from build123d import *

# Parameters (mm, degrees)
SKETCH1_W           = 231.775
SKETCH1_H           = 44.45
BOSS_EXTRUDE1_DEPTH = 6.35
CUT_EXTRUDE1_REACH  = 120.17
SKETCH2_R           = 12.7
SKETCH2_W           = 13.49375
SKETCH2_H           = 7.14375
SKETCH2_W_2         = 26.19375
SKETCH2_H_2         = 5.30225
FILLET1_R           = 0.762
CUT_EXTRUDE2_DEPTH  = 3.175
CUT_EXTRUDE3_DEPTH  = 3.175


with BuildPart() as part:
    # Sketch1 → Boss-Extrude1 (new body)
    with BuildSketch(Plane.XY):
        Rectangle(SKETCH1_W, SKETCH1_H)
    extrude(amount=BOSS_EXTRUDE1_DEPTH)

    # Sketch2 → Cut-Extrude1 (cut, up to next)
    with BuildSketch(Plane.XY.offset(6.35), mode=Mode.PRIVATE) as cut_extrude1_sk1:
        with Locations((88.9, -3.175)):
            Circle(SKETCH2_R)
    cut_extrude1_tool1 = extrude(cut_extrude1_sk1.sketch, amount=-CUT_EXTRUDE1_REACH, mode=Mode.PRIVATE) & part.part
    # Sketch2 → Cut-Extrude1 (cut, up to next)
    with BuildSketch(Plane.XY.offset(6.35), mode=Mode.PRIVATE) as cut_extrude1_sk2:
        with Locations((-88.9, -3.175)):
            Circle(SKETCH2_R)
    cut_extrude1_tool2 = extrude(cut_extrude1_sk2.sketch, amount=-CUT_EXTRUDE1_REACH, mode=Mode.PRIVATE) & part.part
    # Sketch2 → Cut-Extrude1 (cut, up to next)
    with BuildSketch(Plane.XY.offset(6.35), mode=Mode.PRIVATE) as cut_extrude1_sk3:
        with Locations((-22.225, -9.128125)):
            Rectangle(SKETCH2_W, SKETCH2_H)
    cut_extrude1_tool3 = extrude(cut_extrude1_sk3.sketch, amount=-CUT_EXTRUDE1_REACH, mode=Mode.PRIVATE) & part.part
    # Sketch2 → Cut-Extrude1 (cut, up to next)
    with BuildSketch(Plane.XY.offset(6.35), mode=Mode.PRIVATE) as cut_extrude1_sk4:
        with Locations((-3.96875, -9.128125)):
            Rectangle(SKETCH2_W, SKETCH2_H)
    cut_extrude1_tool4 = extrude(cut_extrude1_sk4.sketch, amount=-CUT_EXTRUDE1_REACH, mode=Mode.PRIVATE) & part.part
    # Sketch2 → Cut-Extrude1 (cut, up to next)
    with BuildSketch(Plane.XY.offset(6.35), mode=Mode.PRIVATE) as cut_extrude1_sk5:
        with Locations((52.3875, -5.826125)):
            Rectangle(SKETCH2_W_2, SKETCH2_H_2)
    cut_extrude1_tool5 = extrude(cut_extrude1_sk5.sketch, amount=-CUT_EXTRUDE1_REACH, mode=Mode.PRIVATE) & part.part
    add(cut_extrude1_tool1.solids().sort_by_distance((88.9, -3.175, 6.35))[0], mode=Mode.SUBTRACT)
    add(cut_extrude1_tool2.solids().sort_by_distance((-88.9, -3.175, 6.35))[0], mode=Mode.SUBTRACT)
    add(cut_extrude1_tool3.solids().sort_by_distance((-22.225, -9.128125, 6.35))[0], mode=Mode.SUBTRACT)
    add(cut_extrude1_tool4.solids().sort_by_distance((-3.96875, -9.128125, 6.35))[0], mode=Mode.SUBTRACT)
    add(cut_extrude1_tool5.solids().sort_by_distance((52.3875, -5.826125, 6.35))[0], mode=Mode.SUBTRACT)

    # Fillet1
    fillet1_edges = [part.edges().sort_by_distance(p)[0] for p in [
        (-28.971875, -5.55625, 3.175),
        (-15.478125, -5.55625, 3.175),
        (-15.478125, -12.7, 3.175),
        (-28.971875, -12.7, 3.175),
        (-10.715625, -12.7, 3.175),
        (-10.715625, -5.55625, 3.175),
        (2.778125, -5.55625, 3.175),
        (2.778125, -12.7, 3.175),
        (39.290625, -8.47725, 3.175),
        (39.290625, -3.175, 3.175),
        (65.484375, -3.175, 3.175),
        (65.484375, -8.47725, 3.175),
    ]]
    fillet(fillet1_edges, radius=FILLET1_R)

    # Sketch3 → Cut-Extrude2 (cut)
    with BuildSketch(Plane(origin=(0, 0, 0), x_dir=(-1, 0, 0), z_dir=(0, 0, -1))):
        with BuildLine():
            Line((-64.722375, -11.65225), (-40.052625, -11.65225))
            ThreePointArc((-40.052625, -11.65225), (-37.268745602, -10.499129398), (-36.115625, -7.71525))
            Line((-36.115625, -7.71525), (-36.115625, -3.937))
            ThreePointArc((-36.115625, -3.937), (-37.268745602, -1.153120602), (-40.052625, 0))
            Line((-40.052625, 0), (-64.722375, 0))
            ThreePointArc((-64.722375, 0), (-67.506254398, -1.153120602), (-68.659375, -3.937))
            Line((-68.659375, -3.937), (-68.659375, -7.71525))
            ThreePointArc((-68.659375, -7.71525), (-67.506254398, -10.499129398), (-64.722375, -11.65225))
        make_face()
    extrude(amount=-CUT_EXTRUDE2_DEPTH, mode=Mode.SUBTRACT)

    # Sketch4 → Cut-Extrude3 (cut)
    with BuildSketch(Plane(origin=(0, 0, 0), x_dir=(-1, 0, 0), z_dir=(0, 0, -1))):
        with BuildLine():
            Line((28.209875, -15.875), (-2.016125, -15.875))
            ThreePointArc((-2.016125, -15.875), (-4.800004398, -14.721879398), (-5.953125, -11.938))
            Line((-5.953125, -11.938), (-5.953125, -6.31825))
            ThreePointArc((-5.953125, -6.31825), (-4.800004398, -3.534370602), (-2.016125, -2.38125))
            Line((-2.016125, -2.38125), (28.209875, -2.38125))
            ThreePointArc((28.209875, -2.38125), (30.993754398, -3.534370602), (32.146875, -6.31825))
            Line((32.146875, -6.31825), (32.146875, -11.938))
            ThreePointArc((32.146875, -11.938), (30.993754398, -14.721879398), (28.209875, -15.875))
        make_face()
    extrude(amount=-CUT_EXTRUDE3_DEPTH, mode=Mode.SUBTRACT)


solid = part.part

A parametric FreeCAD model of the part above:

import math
import FreeCAD as App
import Part
import Sketcher
from FreeCAD import Vector
Q = App.Units.Quantity


def edges_at(feature, points):
    """Names of the edges that pass closest to the given points."""
    edges = feature.Shape.Edges
    near = lambda p: min(range(len(edges)), key=lambda i: edges[i].distToShape(Part.Vertex(*p))[0])
    return sorted({f"Edge{near(p) + 1}" for p in points})

doc = App.newDocument("Part")
body = doc.addObject("PartDesign::Body", "Body")

sketch1 = body.newObject("Sketcher::SketchObject", "Sketch")
sketch1.AttachmentSupport = (doc.getObject("XY_Plane"), [""])
sketch1.MapMode = "FlatFace"
sketch1.addGeometry(Part.LineSegment(Vector(-116, 22, 0), Vector(-116, -22, 0)), False)
sketch1.addGeometry(Part.LineSegment(Vector(-116, -22, 0), Vector(116, -22, 0)), False)
sketch1.addGeometry(Part.LineSegment(Vector(116, -22, 0), Vector(116, 22, 0)), False)
sketch1.addGeometry(Part.LineSegment(Vector(116, 22, 0), Vector(-116, 22, 0)), False)
sketch1.addConstraint(Sketcher.Constraint("Coincident", 0, 2, 1, 1))
sketch1.addConstraint(Sketcher.Constraint("Coincident", 1, 2, 2, 1))
sketch1.addConstraint(Sketcher.Constraint("Coincident", 2, 2, 3, 1))
sketch1.addConstraint(Sketcher.Constraint("Coincident", 3, 2, 0, 1))
sketch1.addConstraint(Sketcher.Constraint("Vertical", 0))
sketch1.addConstraint(Sketcher.Constraint("Horizontal", 1))
sketch1.addConstraint(Sketcher.Constraint("Vertical", 2))
sketch1.addConstraint(Sketcher.Constraint("Horizontal", 3))
sketch1.addConstraint(Sketcher.Constraint("Symmetric", 0, 2, 2, 2, -1, 1))
sketch1.addConstraint(Sketcher.Constraint("DistanceY", 0, 2, 0, 1, Q("1.75 in")))
sketch1.addConstraint(Sketcher.Constraint("DistanceX", 1, 1, 1, 2, Q("9.125 in")))
pad1 = body.newObject("PartDesign::Pad", "Pad")
pad1.Profile = sketch1
pad1.Length = Q("0.25 in")

sketch2 = body.newObject("Sketcher::SketchObject", "Sketch001")
sketch2.AttachmentSupport = (doc.getObject("XY_Plane"), [""])
sketch2.MapMode = "FlatFace"
sketch2.AttachmentOffset = App.Placement(Vector(0, 0, 0.25 * 25.4), App.Rotation())
sketch2.addGeometry(Part.Circle(Vector(89, -3, 0), Vector(0, 0, 1), 13), False)
sketch2.addConstraint(Sketcher.Constraint("Diameter", 0, Q("1 in")))
sketch2.addConstraint(Sketcher.Constraint("DistanceX", -1, 1, 0, 3, Q("3.5 in")))
sketch2.addConstraint(Sketcher.Constraint("DistanceY", 0, 3, -1, 1, Q("0.125 in")))
pocket1 = body.newObject("PartDesign::Pocket", "Pocket")
pocket1.Profile = sketch2
pocket1.Type = "UpToFirst"

sketch3 = body.newObject("Sketcher::SketchObject", "Sketch002")
sketch3.AttachmentSupport = (doc.getObject("XY_Plane"), [""])
sketch3.MapMode = "FlatFace"
sketch3.AttachmentOffset = App.Placement(Vector(0, 0, 0.25 * 25.4), App.Rotation())
sketch3.addGeometry(Part.Circle(Vector(-89, -3, 0), Vector(0, 0, 1), 13), False)
sketch3.addConstraint(Sketcher.Constraint("Diameter", 0, Q("1 in")))
sketch3.addConstraint(Sketcher.Constraint("DistanceX", 0, 3, -1, 1, Q("3.5 in")))
sketch3.addConstraint(Sketcher.Constraint("DistanceY", 0, 3, -1, 1, Q("0.125 in")))
pocket2 = body.newObject("PartDesign::Pocket", "Pocket001")
pocket2.Profile = sketch3
pocket2.Type = "UpToFirst"

sketch4 = body.newObject("Sketcher::SketchObject", "Sketch003")
sketch4.AttachmentSupport = (doc.getObject("XY_Plane"), [""])
sketch4.MapMode = "FlatFace"
sketch4.AttachmentOffset = App.Placement(Vector(0, 0, 0.25 * 25.4), App.Rotation())
sketch4.addGeometry(Part.LineSegment(Vector(-29, -6, 0), Vector(-29, -13, 0)), False)
sketch4.addGeometry(Part.LineSegment(Vector(-29, -13, 0), Vector(-15, -13, 0)), False)
sketch4.addGeometry(Part.LineSegment(Vector(-15, -13, 0), Vector(-15, -6, 0)), False)
sketch4.addGeometry(Part.LineSegment(Vector(-15, -6, 0), Vector(-29, -6, 0)), False)
sketch4.addConstraint(Sketcher.Constraint("Coincident", 0, 2, 1, 1))
sketch4.addConstraint(Sketcher.Constraint("Coincident", 1, 2, 2, 1))
sketch4.addConstraint(Sketcher.Constraint("Coincident", 2, 2, 3, 1))
sketch4.addConstraint(Sketcher.Constraint("Coincident", 3, 2, 0, 1))
sketch4.addConstraint(Sketcher.Constraint("Vertical", 0))
sketch4.addConstraint(Sketcher.Constraint("Horizontal", 1))
sketch4.addConstraint(Sketcher.Constraint("Vertical", 2))
sketch4.addConstraint(Sketcher.Constraint("Horizontal", 3))
sketch4.addConstraint(Sketcher.Constraint("DistanceY", 0, 2, -1, 1, Q("0.5 in")))
sketch4.addConstraint(Sketcher.Constraint("DistanceX", 1, 1, 1, 2, Q("0.53125 in")))
sketch4.addConstraint(Sketcher.Constraint("DistanceY", 0, 2, 0, 1, Q("0.28125 in")))
sketch4.addConstraint(Sketcher.Constraint("DistanceX", 0, 2, -1, 1, Q("1.140625 in")))
pocket3 = body.newObject("PartDesign::Pocket", "Pocket002")
pocket3.Profile = sketch4
pocket3.Type = "UpToFirst"

sketch5 = body.newObject("Sketcher::SketchObject", "Sketch004")
sketch5.AttachmentSupport = (doc.getObject("XY_Plane"), [""])
sketch5.MapMode = "FlatFace"
sketch5.AttachmentOffset = App.Placement(Vector(0, 0, 0.25 * 25.4), App.Rotation())
sketch5.addGeometry(Part.LineSegment(Vector(-11, -6, 0), Vector(-11, -13, 0)), False)
sketch5.addGeometry(Part.LineSegment(Vector(-11, -13, 0), Vector(3, -13, 0)), False)
sketch5.addGeometry(Part.LineSegment(Vector(3, -13, 0), Vector(3, -6, 0)), False)
sketch5.addGeometry(Part.LineSegment(Vector(3, -6, 0), Vector(-11, -6, 0)), False)
sketch5.addConstraint(Sketcher.Constraint("Coincident", 0, 2, 1, 1))
sketch5.addConstraint(Sketcher.Constraint("Coincident", 1, 2, 2, 1))
sketch5.addConstraint(Sketcher.Constraint("Coincident", 2, 2, 3, 1))
sketch5.addConstraint(Sketcher.Constraint("Coincident", 3, 2, 0, 1))
sketch5.addConstraint(Sketcher.Constraint("Vertical", 0))
sketch5.addConstraint(Sketcher.Constraint("Horizontal", 1))
sketch5.addConstraint(Sketcher.Constraint("Vertical", 2))
sketch5.addConstraint(Sketcher.Constraint("Horizontal", 3))
sketch5.addConstraint(Sketcher.Constraint("DistanceY", 0, 2, -1, 1, Q("0.5 in")))
sketch5.addConstraint(Sketcher.Constraint("DistanceX", 1, 1, 1, 2, Q("0.53125 in")))
sketch5.addConstraint(Sketcher.Constraint("DistanceY", 0, 2, 0, 1, Q("0.28125 in")))
sketch5.addConstraint(Sketcher.Constraint("DistanceX", 0, 2, -1, 1, Q("0.421875 in")))
pocket4 = body.newObject("PartDesign::Pocket", "Pocket003")
pocket4.Profile = sketch5
pocket4.Type = "UpToFirst"

sketch6 = body.newObject("Sketcher::SketchObject", "Sketch005")
sketch6.AttachmentSupport = (doc.getObject("XY_Plane"), [""])
sketch6.MapMode = "FlatFace"
sketch6.AttachmentOffset = App.Placement(Vector(0, 0, 0.25 * 25.4), App.Rotation())
sketch6.addGeometry(Part.LineSegment(Vector(39, -3, 0), Vector(39, -8, 0)), False)
sketch6.addGeometry(Part.LineSegment(Vector(39, -8, 0), Vector(65, -8, 0)), False)
sketch6.addGeometry(Part.LineSegment(Vector(65, -8, 0), Vector(65, -3, 0)), False)
sketch6.addGeometry(Part.LineSegment(Vector(65, -3, 0), Vector(39, -3, 0)), False)
sketch6.addConstraint(Sketcher.Constraint("Coincident", 0, 2, 1, 1))
sketch6.addConstraint(Sketcher.Constraint("Coincident", 1, 2, 2, 1))
sketch6.addConstraint(Sketcher.Constraint("Coincident", 2, 2, 3, 1))
sketch6.addConstraint(Sketcher.Constraint("Coincident", 3, 2, 0, 1))
sketch6.addConstraint(Sketcher.Constraint("Vertical", 0))
sketch6.addConstraint(Sketcher.Constraint("Horizontal", 1))
sketch6.addConstraint(Sketcher.Constraint("Vertical", 2))
sketch6.addConstraint(Sketcher.Constraint("Horizontal", 3))
sketch6.addConstraint(Sketcher.Constraint("DistanceX", 1, 1, 1, 2, Q("1.03125 in")))
sketch6.addConstraint(Sketcher.Constraint("DistanceX", -1, 1, 0, 2, Q("1.546875 in")))
sketch6.addConstraint(Sketcher.Constraint("DistanceY", 2, 2, -1, 1, Q("0.125 in")))
sketch6.addConstraint(Sketcher.Constraint("DistanceY", 0, 2, 0, 1, Q("5.30225 mm")))
pocket5 = body.newObject("PartDesign::Pocket", "Pocket004")
pocket5.Profile = sketch6
pocket5.Type = "UpToFirst"
doc.recompute()

fillet = body.newObject("PartDesign::Fillet", "Fillet")
fillet.Base = (pocket5, edges_at(pocket5, [
    (-28.972, -5.556, 3.175),
    (-15.478, -5.556, 3.175),
    (-15.478, -12.7, 3.175),
    (-28.972, -12.7, 3.175),
    (-10.716, -12.7, 3.175),
    (-10.716, -5.556, 3.175),
    (2.778, -5.556, 3.175),
    (2.778, -12.7, 3.175),
    (39.291, -8.477, 3.175),
    (39.291, -3.175, 3.175),
    (65.484, -3.175, 3.175),
    (65.484, -8.477, 3.175),
]))
fillet.Radius = Q("0.03 in")

sketch7 = body.newObject("Sketcher::SketchObject", "Sketch006")
sketch7.AttachmentSupport = (doc.getObject("XY_Plane"), [""])
sketch7.MapMode = "FlatFace"
sketch7.addGeometry(Part.LineSegment(Vector(64.7, -11.7, 0), Vector(40.1, -11.7, 0)), False)
sketch7.addGeometry(Part.ArcOfCircle(Part.Circle(Vector(40.1, -7.7, 0), Vector(0, 0, 1), 3.9), math.radians(180), math.radians(270)), False)
sketch7.addGeometry(Part.LineSegment(Vector(36.1, -7.7, 0), Vector(36.1, -3.9, 0)), False)
sketch7.addGeometry(Part.ArcOfCircle(Part.Circle(Vector(40.1, -3.9, 0), Vector(0, 0, 1), 3.9), math.radians(90), math.radians(180)), False)
sketch7.addGeometry(Part.LineSegment(Vector(40.1, 0, 0), Vector(64.7, 0, 0)), False)
sketch7.addGeometry(Part.ArcOfCircle(Part.Circle(Vector(64.7, -3.9, 0), Vector(0, 0, 1), 3.9), math.radians(0), math.radians(90)), False)
sketch7.addGeometry(Part.LineSegment(Vector(68.7, -3.9, 0), Vector(68.7, -7.7, 0)), False)
sketch7.addGeometry(Part.ArcOfCircle(Part.Circle(Vector(64.7, -7.7, 0), Vector(0, 0, 1), 3.9), math.radians(-90), math.radians(0)), False)
sketch7.addConstraint(Sketcher.Constraint("Tangent", 0, 2, 1, 2))
sketch7.addConstraint(Sketcher.Constraint("Tangent", 1, 1, 2, 1))
sketch7.addConstraint(Sketcher.Constraint("Tangent", 2, 2, 3, 2))
sketch7.addConstraint(Sketcher.Constraint("Tangent", 3, 1, 4, 1))
sketch7.addConstraint(Sketcher.Constraint("Tangent", 4, 2, 5, 2))
sketch7.addConstraint(Sketcher.Constraint("Tangent", 5, 1, 6, 1))
sketch7.addConstraint(Sketcher.Constraint("Tangent", 6, 2, 7, 2))
sketch7.addConstraint(Sketcher.Constraint("Tangent", 7, 1, 0, 1))
sketch7.addConstraint(Sketcher.Constraint("Horizontal", 0))
sketch7.addConstraint(Sketcher.Constraint("Vertical", 2))
sketch7.addConstraint(Sketcher.Constraint("Horizontal", 4))
sketch7.addConstraint(Sketcher.Constraint("Vertical", 6))
sketch7.addConstraint(Sketcher.Constraint("Equal", 1, 3))
sketch7.addConstraint(Sketcher.Constraint("Equal", 3, 5))
sketch7.addConstraint(Sketcher.Constraint("Equal", 5, 7))
sketch7.addConstraint(Sketcher.Constraint("PointOnObject", 3, 1, -1))
sketch7.addConstraint(Sketcher.Constraint("Radius", 1, Q("0.155 in")))
sketch7.addConstraint(Sketcher.Constraint("DistanceX", -1, 1, 1, 1, Q("1.421875 in")))
sketch7.addConstraint(Sketcher.Constraint("DistanceX", -1, 1, 5, 1, Q("2.703125 in")))
sketch7.addConstraint(Sketcher.Constraint("DistanceY", 2, 1, 2, 2, Q("3.77825 mm")))
pocket6 = body.newObject("PartDesign::Pocket", "Pocket005")
pocket6.Profile = sketch7
pocket6.Length = Q("0.125 in")
pocket6.Reversed = True

sketch8 = body.newObject("Sketcher::SketchObject", "Sketch007")
sketch8.AttachmentSupport = (doc.getObject("XY_Plane"), [""])
sketch8.MapMode = "FlatFace"
sketch8.addGeometry(Part.LineSegment(Vector(2, -15.9, 0), Vector(-28.2, -15.9, 0)), False)
sketch8.addGeometry(Part.ArcOfCircle(Part.Circle(Vector(-28.2, -11.9, 0), Vector(0, 0, 1), 3.9), math.radians(180), math.radians(270)), False)
sketch8.addGeometry(Part.LineSegment(Vector(-32.1, -11.9, 0), Vector(-32.1, -6.3, 0)), False)
sketch8.addGeometry(Part.ArcOfCircle(Part.Circle(Vector(-28.2, -6.3, 0), Vector(0, 0, 1), 3.9), math.radians(90), math.radians(180)), False)
sketch8.addGeometry(Part.LineSegment(Vector(-28.2, -2.4, 0), Vector(2, -2.4, 0)), False)
sketch8.addGeometry(Part.ArcOfCircle(Part.Circle(Vector(2, -6.3, 0), Vector(0, 0, 1), 3.9), math.radians(0), math.radians(90)), False)
sketch8.addGeometry(Part.LineSegment(Vector(6, -6.3, 0), Vector(6, -11.9, 0)), False)
sketch8.addGeometry(Part.ArcOfCircle(Part.Circle(Vector(2, -11.9, 0), Vector(0, 0, 1), 3.9), math.radians(-90), math.radians(0)), False)
sketch8.addConstraint(Sketcher.Constraint("Tangent", 0, 2, 1, 2))
sketch8.addConstraint(Sketcher.Constraint("Tangent", 1, 1, 2, 1))
sketch8.addConstraint(Sketcher.Constraint("Tangent", 2, 2, 3, 2))
sketch8.addConstraint(Sketcher.Constraint("Tangent", 3, 1, 4, 1))
sketch8.addConstraint(Sketcher.Constraint("Tangent", 4, 2, 5, 2))
sketch8.addConstraint(Sketcher.Constraint("Tangent", 5, 1, 6, 1))
sketch8.addConstraint(Sketcher.Constraint("Tangent", 6, 2, 7, 2))
sketch8.addConstraint(Sketcher.Constraint("Tangent", 7, 1, 0, 1))
sketch8.addConstraint(Sketcher.Constraint("Horizontal", 0))
sketch8.addConstraint(Sketcher.Constraint("Vertical", 2))
sketch8.addConstraint(Sketcher.Constraint("Horizontal", 4))
sketch8.addConstraint(Sketcher.Constraint("Vertical", 6))
sketch8.addConstraint(Sketcher.Constraint("Equal", 1, 3))
sketch8.addConstraint(Sketcher.Constraint("Equal", 3, 5))
sketch8.addConstraint(Sketcher.Constraint("Equal", 5, 7))
sketch8.addConstraint(Sketcher.Constraint("Radius", 1, Q("0.155 in")))
sketch8.addConstraint(Sketcher.Constraint("DistanceX", 0, 2, 0, 1, Q("1.19 in")))
sketch8.addConstraint(Sketcher.Constraint("DistanceY", 1, 3, -1, 1, Q("0.47 in")))
sketch8.addConstraint(Sketcher.Constraint("DistanceX", 1, 1, -1, 1, Q("1.265625 in")))
sketch8.addConstraint(Sketcher.Constraint("DistanceY", 3, 1, -1, 1, Q("0.09375 in")))
pocket7 = body.newObject("PartDesign::Pocket", "Pocket006")
pocket7.Profile = sketch8
pocket7.Length = Q("0.125 in")
pocket7.Reversed = True

doc.recompute()
